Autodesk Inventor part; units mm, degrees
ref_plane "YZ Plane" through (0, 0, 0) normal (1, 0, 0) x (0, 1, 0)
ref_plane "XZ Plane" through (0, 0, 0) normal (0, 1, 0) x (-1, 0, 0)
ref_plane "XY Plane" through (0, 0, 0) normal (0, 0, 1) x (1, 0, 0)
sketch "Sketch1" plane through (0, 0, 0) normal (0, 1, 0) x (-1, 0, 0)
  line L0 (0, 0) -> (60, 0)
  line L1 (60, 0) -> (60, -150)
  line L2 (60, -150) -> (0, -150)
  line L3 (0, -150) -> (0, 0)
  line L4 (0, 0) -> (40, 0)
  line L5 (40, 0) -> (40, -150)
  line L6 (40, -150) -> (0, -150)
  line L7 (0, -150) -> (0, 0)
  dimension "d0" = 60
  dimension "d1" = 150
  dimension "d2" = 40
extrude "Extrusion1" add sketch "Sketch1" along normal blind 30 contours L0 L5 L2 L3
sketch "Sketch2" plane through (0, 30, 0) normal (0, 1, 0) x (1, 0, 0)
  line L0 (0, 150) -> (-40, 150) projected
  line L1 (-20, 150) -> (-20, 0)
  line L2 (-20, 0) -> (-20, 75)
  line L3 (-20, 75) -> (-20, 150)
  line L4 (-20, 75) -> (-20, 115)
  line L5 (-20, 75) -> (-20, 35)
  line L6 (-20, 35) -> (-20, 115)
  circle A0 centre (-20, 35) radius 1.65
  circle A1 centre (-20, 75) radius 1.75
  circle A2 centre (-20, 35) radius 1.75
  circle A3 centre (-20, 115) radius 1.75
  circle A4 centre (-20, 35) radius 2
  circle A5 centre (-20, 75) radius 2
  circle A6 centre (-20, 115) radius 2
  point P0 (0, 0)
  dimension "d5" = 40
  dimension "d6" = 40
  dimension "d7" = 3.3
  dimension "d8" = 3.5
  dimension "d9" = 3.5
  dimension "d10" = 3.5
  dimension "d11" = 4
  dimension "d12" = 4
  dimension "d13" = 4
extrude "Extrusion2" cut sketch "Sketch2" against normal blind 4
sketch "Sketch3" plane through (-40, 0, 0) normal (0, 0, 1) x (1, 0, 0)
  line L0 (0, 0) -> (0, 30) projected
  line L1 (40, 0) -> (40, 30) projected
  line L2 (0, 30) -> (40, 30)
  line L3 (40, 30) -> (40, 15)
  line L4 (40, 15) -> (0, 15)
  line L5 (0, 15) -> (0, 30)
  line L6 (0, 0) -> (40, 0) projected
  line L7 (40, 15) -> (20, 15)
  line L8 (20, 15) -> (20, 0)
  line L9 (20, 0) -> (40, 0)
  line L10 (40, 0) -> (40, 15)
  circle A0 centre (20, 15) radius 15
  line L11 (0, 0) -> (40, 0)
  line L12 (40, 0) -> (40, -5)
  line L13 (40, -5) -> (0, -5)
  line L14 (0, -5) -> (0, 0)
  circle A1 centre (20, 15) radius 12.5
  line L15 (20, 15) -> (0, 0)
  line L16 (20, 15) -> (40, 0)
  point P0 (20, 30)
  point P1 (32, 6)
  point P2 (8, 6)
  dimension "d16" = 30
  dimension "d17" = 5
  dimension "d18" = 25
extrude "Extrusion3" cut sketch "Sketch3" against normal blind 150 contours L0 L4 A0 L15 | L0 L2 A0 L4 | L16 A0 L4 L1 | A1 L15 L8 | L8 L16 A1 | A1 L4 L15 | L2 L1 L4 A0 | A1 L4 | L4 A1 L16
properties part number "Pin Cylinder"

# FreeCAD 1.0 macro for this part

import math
import FreeCAD as App
import Part
import Sketcher
from FreeCAD import Vector

doc = App.newDocument("Part")
body = doc.addObject("PartDesign::Body", "Body")

# Sketch on XZ plane
sketch1 = body.newObject("Sketcher::SketchObject", "Sketch")
sketch1.AttachmentSupport = (doc.getObject("XZ_Plane"), [""])
sketch1.MapMode = "FlatFace"
sketch1.addGeometry(Part.LineSegment(Vector(-40, 0, 0), Vector(0, 0, 0)), False)
sketch1.addGeometry(Part.LineSegment(Vector(0, 0, 0), Vector(0, -150, 0)), False)
sketch1.addGeometry(Part.LineSegment(Vector(0, -150, 0), Vector(-40, -150, 0)), False)
sketch1.addGeometry(Part.LineSegment(Vector(-40, -150, 0), Vector(-40, 0, 0)), False)
sketch1.addConstraint(Sketcher.Constraint("Coincident", 0, 2, 1, 1))
sketch1.addConstraint(Sketcher.Constraint("Coincident", 1, 2, 2, 1))
sketch1.addConstraint(Sketcher.Constraint("Coincident", 2, 2, 3, 1))
sketch1.addConstraint(Sketcher.Constraint("Coincident", 3, 2, 0, 1))
sketch1.addConstraint(Sketcher.Constraint("Horizontal", 0))
sketch1.addConstraint(Sketcher.Constraint("Vertical", 1))
sketch1.addConstraint(Sketcher.Constraint("Horizontal", 2))
sketch1.addConstraint(Sketcher.Constraint("Vertical", 3))
sketch1.addConstraint(Sketcher.Constraint("Coincident", 0, 2, -1, 1))
sketch1.addConstraint(Sketcher.Constraint("DistanceX", 0, 1, 0, 2, 40.0))
sketch1.addConstraint(Sketcher.Constraint("DistanceY", 1, 2, 1, 1, 150.0))
pad1 = body.newObject("PartDesign::Pad", "Pad")
pad1.Profile = sketch1
pad1.Length = 30
pad1.Reversed = True

# Sketch on XZ plane
sketch2 = body.newObject("Sketcher::SketchObject", "Sketch001")
sketch2.AttachmentSupport = (doc.getObject("XZ_Plane"), [""])
sketch2.MapMode = "FlatFace"
sketch2.AttachmentOffset = App.Placement(Vector(0, 0, -30), App.Rotation())
sketch2.addGeometry(Part.Circle(Vector(-20, -115, 0), Vector(0, 0, 1), 2), False)
sketch2.addGeometry(Part.Circle(Vector(-20, -35, 0), Vector(0, 0, 1), 2), False)
sketch2.addGeometry(Part.Circle(Vector(-20, -75, 0), Vector(0, 0, 1), 2), False)
sketch2.addConstraint(Sketcher.Constraint("Equal", 0, 1))
sketch2.addConstraint(Sketcher.Constraint("Equal", 1, 2))
sketch2.addConstraint(Sketcher.Constraint("Vertical", 0, 3, 1, 3))
sketch2.addConstraint(Sketcher.Constraint("Vertical", 1, 3, 2, 3))
sketch2.addConstraint(Sketcher.Constraint("Diameter", 0, 4.0))
sketch2.addConstraint(Sketcher.Constraint("DistanceY", 0, 3, 2, 3, 40.0))
sketch2.addConstraint(Sketcher.Constraint("DistanceY", 2, 3, 1, 3, 40.0))
sketch2.addConstraint(Sketcher.Constraint("DistanceX", 0, 3, -1, 1, 20.0))
sketch2.addConstraint(Sketcher.Constraint("DistanceY", 0, 3, -1, 1, 115.0))
pocket1 = body.newObject("PartDesign::Pocket", "Pocket")
pocket1.Profile = sketch2
pocket1.Length = 4
pocket1.Reversed = True

# Sketch on XY plane
sketch3 = body.newObject("Sketcher::SketchObject", "Sketch002")
sketch3.AttachmentSupport = (doc.getObject("XY_Plane"), [""])
sketch3.MapMode = "FlatFace"
sketch3.addGeometry(Part.LineSegment(Vector(-40, 0, 0), Vector(-32, 6, 0)), False)
sketch3.addGeometry(Part.ArcOfCircle(Part.Circle(Vector(-20, 15, 0), Vector(0, 0, 1), 15), math.radians(90), math.radians(217)), False)
sketch3.addGeometry(Part.LineSegment(Vector(-20, 30, 0), Vector(-40, 30, 0)), False)
sketch3.addGeometry(Part.LineSegment(Vector(-40, 30, 0), Vector(-40, 0, 0)), False)
sketch3.addGeometry(Part.LineSegment(Vector(-8, 6, 0), Vector(0, 0, 0)), False)
sketch3.addGeometry(Part.LineSegment(Vector(0, 0, 0), Vector(0, 30, 0)), False)
sketch3.addGeometry(Part.LineSegment(Vector(0, 30, 0), Vector(-20, 30, 0)), False)
sketch3.addGeometry(Part.ArcOfCircle(Part.Circle(Vector(-20, 15, 0), Vector(0, 0, 1), 15), math.radians(-37), math.radians(90)), False)
sketch3.addGeometry(Part.Circle(Vector(-20, 15, 0), Vector(0, 0, 1), 12), False)
sketch3.addConstraint(Sketcher.Constraint("Coincident", 0, 2, 1, 2))
sketch3.addConstraint(Sketcher.Constraint("Tangent", 1, 1, 2, 1))
sketch3.addConstraint(Sketcher.Constraint("Coincident", 2, 2, 3, 1))
sketch3.addConstraint(Sketcher.Constraint("Coincident", 3, 2, 0, 1))
sketch3.addConstraint(Sketcher.Constraint("Coincident", 4, 2, 5, 1))
sketch3.addConstraint(Sketcher.Constraint("Coincident", 5, 2, 6, 1))
sketch3.addConstraint(Sketcher.Constraint("Tangent", 6, 2, 7, 2))
sketch3.addConstraint(Sketcher.Constraint("Coincident", 7, 1, 4, 1))
sketch3.addConstraint(Sketcher.Constraint("Horizontal", 2))
sketch3.addConstraint(Sketcher.Constraint("Vertical", 3))
sketch3.addConstraint(Sketcher.Constraint("Vertical", 5))
sketch3.addConstraint(Sketcher.Constraint("Horizontal", 6))
sketch3.addConstraint(Sketcher.Constraint("Coincident", 4, 2, -1, 1))
sketch3.addConstraint(Sketcher.Constraint("Coincident", 7, 3, 1, 3))
sketch3.addConstraint(Sketcher.Constraint("Coincident", 8, 3, 1, 3))
sketch3.addConstraint(Sketcher.Constraint("Equal", 1, 7))
sketch3.addConstraint(Sketcher.Constraint("PointOnObject", 3, 2, -1))
sketch3.addConstraint(Sketcher.Constraint("Horizontal", 0, 2, 7, 1))
sketch3.addConstraint(Sketcher.Constraint("Equal", 2, 6))
sketch3.addConstraint(Sketcher.Constraint("Diameter", 8, 25.0))
sketch3.addConstraint(Sketcher.Constraint("Radius", 1, 15.0))
sketch3.addConstraint(Sketcher.Constraint("DistanceY", 3, 2, 3, 1, 30.0))
sketch3.addConstraint(Sketcher.Constraint("DistanceX", 2, 2, 2, 1, 20.0))
sketch3.addConstraint(Sketcher.Constraint("DistanceX", 0, 2, -1, 1, 32.0))
pocket2 = body.newObject("PartDesign::Pocket", "Pocket001")
pocket2.Profile = sketch3
pocket2.Length = 150

doc.recompute()
